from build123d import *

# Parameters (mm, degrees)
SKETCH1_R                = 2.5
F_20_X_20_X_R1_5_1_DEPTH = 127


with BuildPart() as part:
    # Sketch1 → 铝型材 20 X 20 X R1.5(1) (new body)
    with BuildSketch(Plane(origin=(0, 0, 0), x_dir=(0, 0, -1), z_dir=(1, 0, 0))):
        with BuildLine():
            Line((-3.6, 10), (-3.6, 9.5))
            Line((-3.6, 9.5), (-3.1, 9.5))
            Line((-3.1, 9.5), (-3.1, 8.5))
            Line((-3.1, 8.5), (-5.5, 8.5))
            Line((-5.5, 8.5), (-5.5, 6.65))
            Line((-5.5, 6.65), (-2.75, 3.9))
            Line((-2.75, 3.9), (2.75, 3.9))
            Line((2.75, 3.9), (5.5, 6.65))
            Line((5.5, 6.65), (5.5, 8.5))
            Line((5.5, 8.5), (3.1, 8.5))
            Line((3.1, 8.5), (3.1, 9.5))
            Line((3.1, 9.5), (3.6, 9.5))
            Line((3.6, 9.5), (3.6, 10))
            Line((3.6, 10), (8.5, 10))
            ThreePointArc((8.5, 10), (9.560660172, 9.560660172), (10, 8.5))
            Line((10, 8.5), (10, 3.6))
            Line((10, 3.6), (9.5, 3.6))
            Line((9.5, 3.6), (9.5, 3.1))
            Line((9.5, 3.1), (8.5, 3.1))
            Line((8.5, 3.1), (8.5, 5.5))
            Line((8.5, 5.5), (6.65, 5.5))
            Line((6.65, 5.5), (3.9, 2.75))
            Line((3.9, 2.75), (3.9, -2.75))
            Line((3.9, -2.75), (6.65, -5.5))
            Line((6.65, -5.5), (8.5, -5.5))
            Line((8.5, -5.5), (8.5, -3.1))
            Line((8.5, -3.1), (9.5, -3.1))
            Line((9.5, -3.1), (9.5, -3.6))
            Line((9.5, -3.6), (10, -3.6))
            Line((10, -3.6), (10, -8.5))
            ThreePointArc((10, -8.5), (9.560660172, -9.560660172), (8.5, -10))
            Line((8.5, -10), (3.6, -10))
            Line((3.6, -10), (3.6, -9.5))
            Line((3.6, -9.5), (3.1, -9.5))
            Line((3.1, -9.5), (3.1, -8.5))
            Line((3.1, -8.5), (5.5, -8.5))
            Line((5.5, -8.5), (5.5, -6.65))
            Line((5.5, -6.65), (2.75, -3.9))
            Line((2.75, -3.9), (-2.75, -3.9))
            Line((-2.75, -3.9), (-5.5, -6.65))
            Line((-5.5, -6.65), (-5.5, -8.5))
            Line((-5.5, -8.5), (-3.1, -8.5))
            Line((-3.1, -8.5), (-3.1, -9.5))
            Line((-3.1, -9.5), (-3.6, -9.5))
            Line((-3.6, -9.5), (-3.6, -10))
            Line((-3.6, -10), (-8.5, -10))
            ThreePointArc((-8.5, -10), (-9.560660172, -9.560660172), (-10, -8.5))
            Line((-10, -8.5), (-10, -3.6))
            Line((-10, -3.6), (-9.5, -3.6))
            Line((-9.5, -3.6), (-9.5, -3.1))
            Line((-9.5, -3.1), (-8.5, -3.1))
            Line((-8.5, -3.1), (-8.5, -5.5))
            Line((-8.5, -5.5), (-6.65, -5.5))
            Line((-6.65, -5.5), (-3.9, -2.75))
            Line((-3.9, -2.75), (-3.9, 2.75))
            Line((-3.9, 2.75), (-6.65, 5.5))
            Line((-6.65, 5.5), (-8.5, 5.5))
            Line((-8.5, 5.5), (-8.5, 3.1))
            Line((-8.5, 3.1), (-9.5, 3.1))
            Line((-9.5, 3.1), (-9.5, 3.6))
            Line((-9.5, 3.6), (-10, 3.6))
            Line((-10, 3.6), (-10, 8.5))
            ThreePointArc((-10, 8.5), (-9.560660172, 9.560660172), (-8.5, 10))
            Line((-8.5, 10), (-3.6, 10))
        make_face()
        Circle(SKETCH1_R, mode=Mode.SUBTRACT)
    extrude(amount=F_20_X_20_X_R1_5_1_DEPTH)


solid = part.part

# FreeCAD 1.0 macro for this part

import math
import FreeCAD as App
import Part
import Sketcher
from FreeCAD import Vector

doc = App.newDocument("Part")
body = doc.addObject("PartDesign::Body", "Body")

# Sketch on YZ plane
sketch1 = body.newObject("Sketcher::SketchObject", "Sketch")
sketch1.AttachmentSupport = (doc.getObject("YZ_Plane"), [""])
sketch1.MapMode = "FlatFace"
sketch1.addGeometry([
    Part.LineSegment(Vector(9.5, 3.6, 0), Vector(10, 3.6, 0)),  # 0
    Part.LineSegment(Vector(10, 3.6, 0), Vector(10, 8.5, 0)),  # 1
    Part.ArcOfCircle(Part.Circle(Vector(8.5, 8.5, 0), Vector(0, 0, 1), 1.5), math.radians(0), math.radians(90)),  # 2
    Part.LineSegment(Vector(8.5, 10, 0), Vector(3.6, 10, 0)),  # 3
    Part.LineSegment(Vector(3.6, 10, 0), Vector(3.6, 9.5, 0)),  # 4
    Part.LineSegment(Vector(3.6, 9.5, 0), Vector(3.1, 9.5, 0)),  # 5
    Part.LineSegment(Vector(3.1, 9.5, 0), Vector(3.1, 8.5, 0)),  # 6
    Part.LineSegment(Vector(3.1, 8.5, 0), Vector(5.5, 8.5, 0)),  # 7
    Part.LineSegment(Vector(5.5, 8.5, 0), Vector(5.5, 6.7, 0)),  # 8
    Part.LineSegment(Vector(5.5, 6.7, 0), Vector(2.8, 3.9, 0)),  # 9
    Part.LineSegment(Vector(2.8, 3.9, 0), Vector(-2.8, 3.9, 0)),  # 10
    Part.LineSegment(Vector(-2.8, 3.9, 0), Vector(-5.5, 6.7, 0)),  # 11
    Part.LineSegment(Vector(-5.5, 6.7, 0), Vector(-5.5, 8.5, 0)),  # 12
    Part.LineSegment(Vector(-5.5, 8.5, 0), Vector(-3.1, 8.5, 0)),  # 13
    Part.LineSegment(Vector(-3.1, 8.5, 0), Vector(-3.1, 9.5, 0)),  # 14
    Part.LineSegment(Vector(-3.1, 9.5, 0), Vector(-3.6, 9.5, 0)),  # 15
    Part.LineSegment(Vector(-3.6, 9.5, 0), Vector(-3.6, 10, 0)),  # 16
    Part.LineSegment(Vector(-3.6, 10, 0), Vector(-8.5, 10, 0)),  # 17
    Part.ArcOfCircle(Part.Circle(Vector(-8.5, 8.5, 0), Vector(0, 0, 1), 1.5), math.radians(90), math.radians(180)),  # 18
    Part.LineSegment(Vector(-10, 8.5, 0), Vector(-10, 3.6, 0)),  # 19
    Part.LineSegment(Vector(-10, 3.6, 0), Vector(-9.5, 3.6, 0)),  # 20
    Part.LineSegment(Vector(-9.5, 3.6, 0), Vector(-9.5, 3.1, 0)),  # 21
    Part.LineSegment(Vector(-9.5, 3.1, 0), Vector(-8.5, 3.1, 0)),  # 22
    Part.LineSegment(Vector(-8.5, 3.1, 0), Vector(-8.5, 5.5, 0)),  # 23
    Part.LineSegment(Vector(-8.5, 5.5, 0), Vector(-6.7, 5.5, 0)),  # 24
    Part.LineSegment(Vector(-6.7, 5.5, 0), Vector(-3.9, 2.8, 0)),  # 25
    Part.LineSegment(Vector(-3.9, 2.8, 0), Vector(-3.9, -2.8, 0)),  # 26
    Part.LineSegment(Vector(-3.9, -2.8, 0), Vector(-6.7, -5.5, 0)),  # 27
    Part.LineSegment(Vector(-6.7, -5.5, 0), Vector(-8.5, -5.5, 0)),  # 28
    Part.LineSegment(Vector(-8.5, -5.5, 0), Vector(-8.5, -3.1, 0)),  # 29
    Part.LineSegment(Vector(-8.5, -3.1, 0), Vector(-9.5, -3.1, 0)),  # 30
    Part.LineSegment(Vector(-9.5, -3.1, 0), Vector(-9.5, -3.6, 0)),  # 31
    Part.LineSegment(Vector(-9.5, -3.6, 0), Vector(-10, -3.6, 0)),  # 32
    Part.LineSegment(Vector(-10, -3.6, 0), Vector(-10, -8.5, 0)),  # 33
    Part.ArcOfCircle(Part.Circle(Vector(-8.5, -8.5, 0), Vector(0, 0, 1), 1.5), math.radians(180), math.radians(270)),  # 34
    Part.LineSegment(Vector(-8.5, -10, 0), Vector(-3.6, -10, 0)),  # 35
    Part.LineSegment(Vector(-3.6, -10, 0), Vector(-3.6, -9.5, 0)),  # 36
    Part.LineSegment(Vector(-3.6, -9.5, 0), Vector(-3.1, -9.5, 0)),  # 37
    Part.LineSegment(Vector(-3.1, -9.5, 0), Vector(-3.1, -8.5, 0)),  # 38
    Part.LineSegment(Vector(-3.1, -8.5, 0), Vector(-5.5, -8.5, 0)),  # 39
    Part.LineSegment(Vector(-5.5, -8.5, 0), Vector(-5.5, -6.7, 0)),  # 40
    Part.LineSegment(Vector(-5.5, -6.7, 0), Vector(-2.8, -3.9, 0)),  # 41
    Part.LineSegment(Vector(-2.8, -3.9, 0), Vector(2.8, -3.9, 0)),  # 42
    Part.LineSegment(Vector(2.8, -3.9, 0), Vector(5.5, -6.7, 0)),  # 43
    Part.LineSegment(Vector(5.5, -6.7, 0), Vector(5.5, -8.5, 0)),  # 44
    Part.LineSegment(Vector(5.5, -8.5, 0), Vector(3.1, -8.5, 0)),  # 45
    Part.LineSegment(Vector(3.1, -8.5, 0), Vector(3.1, -9.5, 0)),  # 46
    Part.LineSegment(Vector(3.1, -9.5, 0), Vector(3.6, -9.5, 0)),  # 47
    Part.LineSegment(Vector(3.6, -9.5, 0), Vector(3.6, -10, 0)),  # 48
    Part.LineSegment(Vector(3.6, -10, 0), Vector(8.5, -10, 0)),  # 49
    Part.ArcOfCircle(Part.Circle(Vector(8.5, -8.5, 0), Vector(0, 0, 1), 1.5), math.radians(-90), math.radians(0)),  # 50
    Part.LineSegment(Vector(10, -8.5, 0), Vector(10, -3.6, 0)),  # 51
    Part.LineSegment(Vector(10, -3.6, 0), Vector(9.5, -3.6, 0)),  # 52
    Part.LineSegment(Vector(9.5, -3.6, 0), Vector(9.5, -3.1, 0)),  # 53
    Part.LineSegment(Vector(9.5, -3.1, 0), Vector(8.5, -3.1, 0)),  # 54
    Part.LineSegment(Vector(8.5, -3.1, 0), Vector(8.5, -5.5, 0)),  # 55
    Part.LineSegment(Vector(8.5, -5.5, 0), Vector(6.7, -5.5, 0)),  # 56
    Part.LineSegment(Vector(6.7, -5.5, 0), Vector(3.9, -2.8, 0)),  # 57
    Part.LineSegment(Vector(3.9, -2.8, 0), Vector(3.9, 2.8, 0)),  # 58
    Part.LineSegment(Vector(3.9, 2.8, 0), Vector(6.7, 5.5, 0)),  # 59
    Part.LineSegment(Vector(6.7, 5.5, 0), Vector(8.5, 5.5, 0)),  # 60
    Part.LineSegment(Vector(8.5, 5.5, 0), Vector(8.5, 3.1, 0)),  # 61
    Part.LineSegment(Vector(8.5, 3.1, 0), Vector(9.5, 3.1, 0)),  # 62
    Part.LineSegment(Vector(9.5, 3.1, 0), Vector(9.5, 3.6, 0)),  # 63
    Part.Circle(Vector(0, 0, 0), Vector(0, 0, 1), 2.5),  # 64
], False)
sketch1.addConstraint([
    Sketcher.Constraint("Coincident", 0, 2, 1, 1),
    Sketcher.Constraint("Tangent", 1, 2, 2, 1),
    Sketcher.Constraint("Tangent", 2, 2, 3, 1),
    Sketcher.Constraint("Coincident", 3, 2, 4, 1),
    Sketcher.Constraint("Coincident", 4, 2, 5, 1),
    Sketcher.Constraint("Coincident", 5, 2, 6, 1),
    Sketcher.Constraint("Coincident", 6, 2, 7, 1),
    Sketcher.Constraint("Coincident", 7, 2, 8, 1),
    Sketcher.Constraint("Coincident", 8, 2, 9, 1),
    Sketcher.Constraint("Coincident", 9, 2, 10, 1),
    Sketcher.Constraint("Coincident", 10, 2, 11, 1),
    Sketcher.Constraint("Coincident", 11, 2, 12, 1),
    Sketcher.Constraint("Coincident", 12, 2, 13, 1),
    Sketcher.Constraint("Coincident", 13, 2, 14, 1),
    Sketcher.Constraint("Coincident", 14, 2, 15, 1),
    Sketcher.Constraint("Coincident", 15, 2, 16, 1),
    Sketcher.Constraint("Coincident", 16, 2, 17, 1),
    Sketcher.Constraint("Tangent", 17, 2, 18, 1),
    Sketcher.Constraint("Tangent", 18, 2, 19, 1),
    Sketcher.Constraint("Coincident", 19, 2, 20, 1),
    Sketcher.Constraint("Coincident", 20, 2, 21, 1),
    Sketcher.Constraint("Coincident", 21, 2, 22, 1),
    Sketcher.Constraint("Coincident", 22, 2, 23, 1),
    Sketcher.Constraint("Coincident", 23, 2, 24, 1),
    Sketcher.Constraint("Coincident", 24, 2, 25, 1),
    Sketcher.Constraint("Coincident", 25, 2, 26, 1),
    Sketcher.Constraint("Coincident", 26, 2, 27, 1),
    Sketcher.Constraint("Coincident", 27, 2, 28, 1),
    Sketcher.Constraint("Coincident", 28, 2, 29, 1),
    Sketcher.Constraint("Coincident", 29, 2, 30, 1),
    Sketcher.Constraint("Coincident", 30, 2, 31, 1),
    Sketcher.Constraint("Coincident", 31, 2, 32, 1),
    Sketcher.Constraint("Coincident", 32, 2, 33, 1),
    Sketcher.Constraint("Tangent", 33, 2, 34, 1),
    Sketcher.Constraint("Tangent", 34, 2, 35, 1),
    Sketcher.Constraint("Coincident", 35, 2, 36, 1),
    Sketcher.Constraint("Coincident", 36, 2, 37, 1),
    Sketcher.Constraint("Coincident", 37, 2, 38, 1),
    Sketcher.Constraint("Coincident", 38, 2, 39, 1),
    Sketcher.Constraint("Coincident", 39, 2, 40, 1),
    Sketcher.Constraint("Coincident", 40, 2, 41, 1),
    Sketcher.Constraint("Coincident", 41, 2, 42, 1),
    Sketcher.Constraint("Coincident", 42, 2, 43, 1),
    Sketcher.Constraint("Coincident", 43, 2, 44, 1),
    Sketcher.Constraint("Coincident", 44, 2, 45, 1),
    Sketcher.Constraint("Coincident", 45, 2, 46, 1),
    Sketcher.Constraint("Coincident", 46, 2, 47, 1),
    Sketcher.Constraint("Coincident", 47, 2, 48, 1),
    Sketcher.Constraint("Coincident", 48, 2, 49, 1),
    Sketcher.Constraint("Tangent", 49, 2, 50, 1),
    Sketcher.Constraint("Tangent", 50, 2, 51, 1),
    Sketcher.Constraint("Coincident", 51, 2, 52, 1),
    Sketcher.Constraint("Coincident", 52, 2, 53, 1),
    Sketcher.Constraint("Coincident", 53, 2, 54, 1),
    Sketcher.Constraint("Coincident", 54, 2, 55, 1),
    Sketcher.Constraint("Coincident", 55, 2, 56, 1),
    Sketcher.Constraint("Coincident", 56, 2, 57, 1),
    Sketcher.Constraint("Coincident", 57, 2, 58, 1),
    Sketcher.Constraint("Coincident", 58, 2, 59, 1),
    Sketcher.Constraint("Coincident", 59, 2, 60, 1),
    Sketcher.Constraint("Coincident", 60, 2, 61, 1),
    Sketcher.Constraint("Coincident", 61, 2, 62, 1),
    Sketcher.Constraint("Coincident", 62, 2, 63, 1),
    Sketcher.Constraint("Coincident", 63, 2, 0, 1),
    Sketcher.Constraint("Horizontal", 0),
    Sketcher.Constraint("Vertical", 1),
    Sketcher.Constraint("Horizontal", 3),
    Sketcher.Constraint("Vertical", 4),
    Sketcher.Constraint("Horizontal", 5),
    Sketcher.Constraint("Vertical", 6),
    Sketcher.Constraint("Horizontal", 7),
    Sketcher.Constraint("Vertical", 8),
    Sketcher.Constraint("Horizontal", 10),
    Sketcher.Constraint("Vertical", 12),
    Sketcher.Constraint("Horizontal", 13),
    Sketcher.Constraint("Vertical", 14),
    Sketcher.Constraint("Horizontal", 15),
    Sketcher.Constraint("Vertical", 16),
    Sketcher.Constraint("Horizontal", 17),
    Sketcher.Constraint("Vertical", 19),
    Sketcher.Constraint("Horizontal", 20),
    Sketcher.Constraint("Vertical", 21),
    Sketcher.Constraint("Horizontal", 22),
    Sketcher.Constraint("Vertical", 23),
    Sketcher.Constraint("Horizontal", 24),
    Sketcher.Constraint("Vertical", 26),
    Sketcher.Constraint("Horizontal", 28),
    Sketcher.Constraint("Vertical", 29),
    Sketcher.Constraint("Horizontal", 30),
    Sketcher.Constraint("Vertical", 31),
    Sketcher.Constraint("Horizontal", 32),
    Sketcher.Constraint("Vertical", 33),
    Sketcher.Constraint("Horizontal", 35),
    Sketcher.Constraint("Vertical", 36),
    Sketcher.Constraint("Horizontal", 37),
    Sketcher.Constraint("Vertical", 38),
    Sketcher.Constraint("Horizontal", 39),
    Sketcher.Constraint("Vertical", 40),
    Sketcher.Constraint("Horizontal", 42),
    Sketcher.Constraint("Vertical", 44),
    Sketcher.Constraint("Horizontal", 45),
    Sketcher.Constraint("Vertical", 46),
    Sketcher.Constraint("Horizontal", 47),
    Sketcher.Constraint("Vertical", 48),
    Sketcher.Constraint("Horizontal", 49),
    Sketcher.Constraint("Vertical", 51),
    Sketcher.Constraint("Horizontal", 52),
    Sketcher.Constraint("Vertical", 53),
    Sketcher.Constraint("Horizontal", 54),
    Sketcher.Constraint("Vertical", 55),
    Sketcher.Constraint("Horizontal", 56),
    Sketcher.Constraint("Vertical", 58),
    Sketcher.Constraint("Horizontal", 60),
    Sketcher.Constraint("Vertical", 61),
    Sketcher.Constraint("Horizontal", 62),
    Sketcher.Constraint("Vertical", 63),
    Sketcher.Constraint("Coincident", 64, 3, -1, 1),
    Sketcher.Constraint("Equal", 2, 18),
    Sketcher.Constraint("Equal", 18, 34),
    Sketcher.Constraint("Equal", 34, 50),
    Sketcher.Constraint("Symmetric", 2, 3, 34, 3, -1, 1),
    Sketcher.Constraint("Symmetric", 18, 3, 50, 3, -1, 1),
    Sketcher.Constraint("Symmetric", 4, 2, 36, 2, -1, 1),
    Sketcher.Constraint("Symmetric", 6, 2, 38, 2, -1, 1),
    Sketcher.Constraint("Symmetric", 8, 2, 40, 2, -1, 1),
    Sketcher.Constraint("Symmetric", 9, 2, 41, 2, -1, 1),
    Sketcher.Constraint("Symmetric", 11, 2, 43, 2, -1, 1),
    Sketcher.Constraint("Symmetric", 13, 2, 45, 2, -1, 1),
    Sketcher.Constraint("Symmetric", 15, 2, 47, 2, -1, 1),
    Sketcher.Constraint("Symmetric", 20, 2, 52, 2, -1, 1),
    Sketcher.Constraint("Symmetric", 22, 2, 54, 2, -1, 1),
    Sketcher.Constraint("Symmetric", 24, 2, 56, 2, -1, 1),
    Sketcher.Constraint("Symmetric", 25, 2, 57, 2, -1, 1),
    Sketcher.Constraint("Symmetric", 27, 2, 59, 2, -1, 1),
    Sketcher.Constraint("Symmetric", 29, 2, 61, 2, -1, 1),
    Sketcher.Constraint("Symmetric", 31, 2, 63, 2, -1, 1),
    Sketcher.Constraint("Symmetric", 2, 3, 18, 3, -2),
    Sketcher.Constraint("Symmetric", 8, 2, 11, 2, -2),
    Sketcher.Constraint("Symmetric", 6, 2, 13, 2, -2),
    Sketcher.Constraint("Symmetric", 4, 2, 15, 2, -2),
    Sketcher.Constraint("Symmetric", 31, 2, 52, 2, -2),
    Sketcher.Constraint("Symmetric", 29, 2, 54, 2, -2),
    Sketcher.Constraint("Symmetric", 27, 2, 56, 2, -2),
    Sketcher.Constraint("Perpendicular", 9, 11),
    Sketcher.Constraint("Parallel", 11, 25),
    Sketcher.Constraint("Perpendicular", 25, 27),
    Sketcher.Constraint("Perpendicular", 41, 43),
    Sketcher.Constraint("Perpendicular", 57, 59),
    Sketcher.Constraint("Horizontal", 1, 2, 6, 2),
    Sketcher.Constraint("Horizontal", 26, 2, 57, 2),
    Sketcher.Constraint("Vertical", 17, 2, 22, 2),
    Sketcher.Constraint("Equal", 0, 5),
    Sketcher.Constraint("Equal", 49, 1),
    Sketcher.Constraint("Equal", 52, 4),
    Sketcher.Constraint("Equal", 60, 8),
    Sketcher.Constraint("Equal", 16, 21),
    Sketcher.Constraint("Equal", 45, 23),
    Sketcher.Constraint("Equal", 42, 26),
    Sketcher.Constraint("Equal", 11, 25),
    Sketcher.Constraint("Diameter", 64, 5.0),
    Sketcher.Constraint("Radius", 2, 1.5),
    Sketcher.Constraint("DistanceX", 22, 1, 22, 2, 1.0),
    Sketcher.Constraint("DistanceX", 3, 2, 3, 1, 4.9),
    Sketcher.Constraint("DistanceX", 7, 1, 7, 2, 2.4),
    Sketcher.Constraint("DistanceX", 10, 2, 10, 1, 5.5),
    Sketcher.Constraint("DistanceX", -1, 1, 0, 2, 10.0),
    Sketcher.Constraint("DistanceX", 24, 1, 24, 2, 1.85),
])
pad1 = body.newObject("PartDesign::Pad", "Pad")
pad1.Profile = sketch1
pad1.Length = 127

doc.recompute()
